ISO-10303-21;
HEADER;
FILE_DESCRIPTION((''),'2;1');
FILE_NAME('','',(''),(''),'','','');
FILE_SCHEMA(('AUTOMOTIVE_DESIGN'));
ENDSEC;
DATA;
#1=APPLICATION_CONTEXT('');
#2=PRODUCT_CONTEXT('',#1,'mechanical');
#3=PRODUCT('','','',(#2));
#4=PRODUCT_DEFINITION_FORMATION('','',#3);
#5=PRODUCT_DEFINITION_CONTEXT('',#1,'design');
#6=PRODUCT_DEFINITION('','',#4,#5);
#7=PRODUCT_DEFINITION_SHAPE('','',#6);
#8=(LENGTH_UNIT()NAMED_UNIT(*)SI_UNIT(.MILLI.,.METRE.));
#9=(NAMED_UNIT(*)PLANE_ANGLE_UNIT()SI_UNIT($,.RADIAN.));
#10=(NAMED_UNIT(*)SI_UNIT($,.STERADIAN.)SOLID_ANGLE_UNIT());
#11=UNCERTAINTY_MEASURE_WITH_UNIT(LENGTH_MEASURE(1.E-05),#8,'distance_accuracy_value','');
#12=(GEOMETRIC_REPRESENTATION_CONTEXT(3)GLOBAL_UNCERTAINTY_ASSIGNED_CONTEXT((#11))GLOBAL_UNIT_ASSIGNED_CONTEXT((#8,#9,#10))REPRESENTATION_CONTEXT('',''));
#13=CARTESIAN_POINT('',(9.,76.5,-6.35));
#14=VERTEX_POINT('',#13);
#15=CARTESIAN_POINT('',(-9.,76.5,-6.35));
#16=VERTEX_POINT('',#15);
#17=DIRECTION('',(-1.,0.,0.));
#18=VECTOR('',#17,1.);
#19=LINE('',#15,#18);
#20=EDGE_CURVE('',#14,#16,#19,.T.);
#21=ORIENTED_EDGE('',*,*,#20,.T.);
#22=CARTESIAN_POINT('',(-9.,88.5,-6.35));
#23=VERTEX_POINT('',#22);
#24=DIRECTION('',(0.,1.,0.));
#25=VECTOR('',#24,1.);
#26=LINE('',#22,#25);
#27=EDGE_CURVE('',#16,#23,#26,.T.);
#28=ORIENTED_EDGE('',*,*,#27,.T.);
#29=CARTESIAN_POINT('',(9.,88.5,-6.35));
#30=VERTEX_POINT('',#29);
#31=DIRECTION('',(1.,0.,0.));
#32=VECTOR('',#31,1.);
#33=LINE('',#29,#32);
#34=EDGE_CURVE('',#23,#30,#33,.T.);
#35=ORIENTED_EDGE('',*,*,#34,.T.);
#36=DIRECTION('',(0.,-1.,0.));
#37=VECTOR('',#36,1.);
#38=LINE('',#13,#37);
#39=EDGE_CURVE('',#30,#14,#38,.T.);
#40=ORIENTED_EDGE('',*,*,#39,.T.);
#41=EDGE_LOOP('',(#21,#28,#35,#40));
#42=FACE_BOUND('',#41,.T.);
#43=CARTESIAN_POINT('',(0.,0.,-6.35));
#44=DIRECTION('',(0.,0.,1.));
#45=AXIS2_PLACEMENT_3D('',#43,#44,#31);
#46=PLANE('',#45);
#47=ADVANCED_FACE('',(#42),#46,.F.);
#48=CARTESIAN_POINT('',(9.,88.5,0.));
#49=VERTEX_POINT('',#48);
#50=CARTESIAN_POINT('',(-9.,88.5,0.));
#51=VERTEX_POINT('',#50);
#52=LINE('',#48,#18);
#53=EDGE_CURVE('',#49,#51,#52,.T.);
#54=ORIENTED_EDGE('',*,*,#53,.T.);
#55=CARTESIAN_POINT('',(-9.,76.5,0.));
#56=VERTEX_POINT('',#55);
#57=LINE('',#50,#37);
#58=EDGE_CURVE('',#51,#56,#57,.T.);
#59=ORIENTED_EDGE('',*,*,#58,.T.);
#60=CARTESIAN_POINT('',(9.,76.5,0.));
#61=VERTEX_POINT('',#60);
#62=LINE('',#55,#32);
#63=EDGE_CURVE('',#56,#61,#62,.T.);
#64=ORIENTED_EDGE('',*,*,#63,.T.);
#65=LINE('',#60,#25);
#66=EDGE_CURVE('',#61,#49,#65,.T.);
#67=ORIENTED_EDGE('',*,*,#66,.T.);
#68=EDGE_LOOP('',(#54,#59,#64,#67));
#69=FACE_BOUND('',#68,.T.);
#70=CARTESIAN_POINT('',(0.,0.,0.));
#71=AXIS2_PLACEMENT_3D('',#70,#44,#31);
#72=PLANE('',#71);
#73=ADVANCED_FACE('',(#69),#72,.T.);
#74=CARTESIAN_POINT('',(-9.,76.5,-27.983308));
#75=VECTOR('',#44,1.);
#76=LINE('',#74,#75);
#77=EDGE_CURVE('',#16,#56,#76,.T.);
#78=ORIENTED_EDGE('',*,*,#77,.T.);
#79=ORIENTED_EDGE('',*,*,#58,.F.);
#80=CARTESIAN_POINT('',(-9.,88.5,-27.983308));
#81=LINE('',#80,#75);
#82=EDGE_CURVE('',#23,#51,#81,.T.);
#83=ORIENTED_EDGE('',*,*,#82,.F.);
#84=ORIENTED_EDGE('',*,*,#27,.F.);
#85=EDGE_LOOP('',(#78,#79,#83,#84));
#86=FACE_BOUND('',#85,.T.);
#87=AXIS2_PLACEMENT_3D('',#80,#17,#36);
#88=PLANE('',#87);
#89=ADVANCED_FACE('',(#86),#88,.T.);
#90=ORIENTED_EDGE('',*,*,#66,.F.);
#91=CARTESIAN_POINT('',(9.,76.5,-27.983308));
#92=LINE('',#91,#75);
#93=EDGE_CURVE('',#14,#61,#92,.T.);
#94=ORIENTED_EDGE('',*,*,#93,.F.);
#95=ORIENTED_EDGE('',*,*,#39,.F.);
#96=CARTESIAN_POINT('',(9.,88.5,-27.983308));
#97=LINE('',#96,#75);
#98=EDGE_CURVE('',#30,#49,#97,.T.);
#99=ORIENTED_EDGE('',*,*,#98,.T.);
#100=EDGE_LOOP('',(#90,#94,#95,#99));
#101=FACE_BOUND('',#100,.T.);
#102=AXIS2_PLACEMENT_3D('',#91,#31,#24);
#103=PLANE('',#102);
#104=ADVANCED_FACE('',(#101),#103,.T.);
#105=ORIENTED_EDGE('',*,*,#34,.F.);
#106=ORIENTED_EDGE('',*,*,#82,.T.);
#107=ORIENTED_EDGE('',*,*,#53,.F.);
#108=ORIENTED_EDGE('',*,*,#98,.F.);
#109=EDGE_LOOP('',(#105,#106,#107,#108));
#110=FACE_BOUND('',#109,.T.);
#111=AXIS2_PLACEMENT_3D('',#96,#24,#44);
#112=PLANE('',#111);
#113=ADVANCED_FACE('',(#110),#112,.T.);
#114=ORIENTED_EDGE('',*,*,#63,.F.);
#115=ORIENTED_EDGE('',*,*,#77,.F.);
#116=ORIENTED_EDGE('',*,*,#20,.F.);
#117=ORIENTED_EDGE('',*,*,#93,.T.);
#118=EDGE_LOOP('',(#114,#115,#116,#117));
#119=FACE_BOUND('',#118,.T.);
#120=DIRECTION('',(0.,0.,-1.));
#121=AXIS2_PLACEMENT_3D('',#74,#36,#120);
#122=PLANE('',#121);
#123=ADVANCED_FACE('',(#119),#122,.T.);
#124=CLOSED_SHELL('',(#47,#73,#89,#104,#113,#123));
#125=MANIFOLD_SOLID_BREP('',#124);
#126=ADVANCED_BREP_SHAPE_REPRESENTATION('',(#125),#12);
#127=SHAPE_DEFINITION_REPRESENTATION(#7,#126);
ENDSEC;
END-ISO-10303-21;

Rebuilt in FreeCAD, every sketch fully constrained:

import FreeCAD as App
import Part
import Sketcher
from FreeCAD import Vector

doc = App.newDocument("Part")
body = doc.addObject("PartDesign::Body", "Body")

# Sketch on XY plane
sketch1 = body.newObject("Sketcher::SketchObject", "Sketch")
sketch1.AttachmentSupport = (doc.getObject("XY_Plane"), [""])
sketch1.MapMode = "FlatFace"
sketch1.addGeometry(Part.LineSegment(Vector(-9, 88.5, 0), Vector(-9, 76.5, 0)), False)
sketch1.addGeometry(Part.LineSegment(Vector(-9, 76.5, 0), Vector(9, 76.5, 0)), False)
sketch1.addGeometry(Part.LineSegment(Vector(9, 76.5, 0), Vector(9, 88.5, 0)), False)
sketch1.addGeometry(Part.LineSegment(Vector(9, 88.5, 0), Vector(-9, 88.5, 0)), False)
sketch1.addConstraint(Sketcher.Constraint("Coincident", 0, 2, 1, 1))
sketch1.addConstraint(Sketcher.Constraint("Coincident", 1, 2, 2, 1))
sketch1.addConstraint(Sketcher.Constraint("Coincident", 2, 2, 3, 1))
sketch1.addConstraint(Sketcher.Constraint("Coincident", 3, 2, 0, 1))
sketch1.addConstraint(Sketcher.Constraint("Vertical", 0))
sketch1.addConstraint(Sketcher.Constraint("Horizontal", 1))
sketch1.addConstraint(Sketcher.Constraint("Vertical", 2))
sketch1.addConstraint(Sketcher.Constraint("Horizontal", 3))
sketch1.addConstraint(Sketcher.Constraint("DistanceX", 1, 1, 1, 2, 18.0))
sketch1.addConstraint(Sketcher.Constraint("DistanceY", 0, 2, 0, 1, 12.0))
sketch1.addConstraint(Sketcher.Constraint("DistanceX", 0, 2, -1, 1, 9.0))
sketch1.addConstraint(Sketcher.Constraint("DistanceY", -1, 1, 0, 2, 76.5))
pad1 = body.newObject("PartDesign::Pad", "Pad")
pad1.Profile = sketch1
pad1.Length = 6.35
pad1.Reversed = True

doc.recompute()
